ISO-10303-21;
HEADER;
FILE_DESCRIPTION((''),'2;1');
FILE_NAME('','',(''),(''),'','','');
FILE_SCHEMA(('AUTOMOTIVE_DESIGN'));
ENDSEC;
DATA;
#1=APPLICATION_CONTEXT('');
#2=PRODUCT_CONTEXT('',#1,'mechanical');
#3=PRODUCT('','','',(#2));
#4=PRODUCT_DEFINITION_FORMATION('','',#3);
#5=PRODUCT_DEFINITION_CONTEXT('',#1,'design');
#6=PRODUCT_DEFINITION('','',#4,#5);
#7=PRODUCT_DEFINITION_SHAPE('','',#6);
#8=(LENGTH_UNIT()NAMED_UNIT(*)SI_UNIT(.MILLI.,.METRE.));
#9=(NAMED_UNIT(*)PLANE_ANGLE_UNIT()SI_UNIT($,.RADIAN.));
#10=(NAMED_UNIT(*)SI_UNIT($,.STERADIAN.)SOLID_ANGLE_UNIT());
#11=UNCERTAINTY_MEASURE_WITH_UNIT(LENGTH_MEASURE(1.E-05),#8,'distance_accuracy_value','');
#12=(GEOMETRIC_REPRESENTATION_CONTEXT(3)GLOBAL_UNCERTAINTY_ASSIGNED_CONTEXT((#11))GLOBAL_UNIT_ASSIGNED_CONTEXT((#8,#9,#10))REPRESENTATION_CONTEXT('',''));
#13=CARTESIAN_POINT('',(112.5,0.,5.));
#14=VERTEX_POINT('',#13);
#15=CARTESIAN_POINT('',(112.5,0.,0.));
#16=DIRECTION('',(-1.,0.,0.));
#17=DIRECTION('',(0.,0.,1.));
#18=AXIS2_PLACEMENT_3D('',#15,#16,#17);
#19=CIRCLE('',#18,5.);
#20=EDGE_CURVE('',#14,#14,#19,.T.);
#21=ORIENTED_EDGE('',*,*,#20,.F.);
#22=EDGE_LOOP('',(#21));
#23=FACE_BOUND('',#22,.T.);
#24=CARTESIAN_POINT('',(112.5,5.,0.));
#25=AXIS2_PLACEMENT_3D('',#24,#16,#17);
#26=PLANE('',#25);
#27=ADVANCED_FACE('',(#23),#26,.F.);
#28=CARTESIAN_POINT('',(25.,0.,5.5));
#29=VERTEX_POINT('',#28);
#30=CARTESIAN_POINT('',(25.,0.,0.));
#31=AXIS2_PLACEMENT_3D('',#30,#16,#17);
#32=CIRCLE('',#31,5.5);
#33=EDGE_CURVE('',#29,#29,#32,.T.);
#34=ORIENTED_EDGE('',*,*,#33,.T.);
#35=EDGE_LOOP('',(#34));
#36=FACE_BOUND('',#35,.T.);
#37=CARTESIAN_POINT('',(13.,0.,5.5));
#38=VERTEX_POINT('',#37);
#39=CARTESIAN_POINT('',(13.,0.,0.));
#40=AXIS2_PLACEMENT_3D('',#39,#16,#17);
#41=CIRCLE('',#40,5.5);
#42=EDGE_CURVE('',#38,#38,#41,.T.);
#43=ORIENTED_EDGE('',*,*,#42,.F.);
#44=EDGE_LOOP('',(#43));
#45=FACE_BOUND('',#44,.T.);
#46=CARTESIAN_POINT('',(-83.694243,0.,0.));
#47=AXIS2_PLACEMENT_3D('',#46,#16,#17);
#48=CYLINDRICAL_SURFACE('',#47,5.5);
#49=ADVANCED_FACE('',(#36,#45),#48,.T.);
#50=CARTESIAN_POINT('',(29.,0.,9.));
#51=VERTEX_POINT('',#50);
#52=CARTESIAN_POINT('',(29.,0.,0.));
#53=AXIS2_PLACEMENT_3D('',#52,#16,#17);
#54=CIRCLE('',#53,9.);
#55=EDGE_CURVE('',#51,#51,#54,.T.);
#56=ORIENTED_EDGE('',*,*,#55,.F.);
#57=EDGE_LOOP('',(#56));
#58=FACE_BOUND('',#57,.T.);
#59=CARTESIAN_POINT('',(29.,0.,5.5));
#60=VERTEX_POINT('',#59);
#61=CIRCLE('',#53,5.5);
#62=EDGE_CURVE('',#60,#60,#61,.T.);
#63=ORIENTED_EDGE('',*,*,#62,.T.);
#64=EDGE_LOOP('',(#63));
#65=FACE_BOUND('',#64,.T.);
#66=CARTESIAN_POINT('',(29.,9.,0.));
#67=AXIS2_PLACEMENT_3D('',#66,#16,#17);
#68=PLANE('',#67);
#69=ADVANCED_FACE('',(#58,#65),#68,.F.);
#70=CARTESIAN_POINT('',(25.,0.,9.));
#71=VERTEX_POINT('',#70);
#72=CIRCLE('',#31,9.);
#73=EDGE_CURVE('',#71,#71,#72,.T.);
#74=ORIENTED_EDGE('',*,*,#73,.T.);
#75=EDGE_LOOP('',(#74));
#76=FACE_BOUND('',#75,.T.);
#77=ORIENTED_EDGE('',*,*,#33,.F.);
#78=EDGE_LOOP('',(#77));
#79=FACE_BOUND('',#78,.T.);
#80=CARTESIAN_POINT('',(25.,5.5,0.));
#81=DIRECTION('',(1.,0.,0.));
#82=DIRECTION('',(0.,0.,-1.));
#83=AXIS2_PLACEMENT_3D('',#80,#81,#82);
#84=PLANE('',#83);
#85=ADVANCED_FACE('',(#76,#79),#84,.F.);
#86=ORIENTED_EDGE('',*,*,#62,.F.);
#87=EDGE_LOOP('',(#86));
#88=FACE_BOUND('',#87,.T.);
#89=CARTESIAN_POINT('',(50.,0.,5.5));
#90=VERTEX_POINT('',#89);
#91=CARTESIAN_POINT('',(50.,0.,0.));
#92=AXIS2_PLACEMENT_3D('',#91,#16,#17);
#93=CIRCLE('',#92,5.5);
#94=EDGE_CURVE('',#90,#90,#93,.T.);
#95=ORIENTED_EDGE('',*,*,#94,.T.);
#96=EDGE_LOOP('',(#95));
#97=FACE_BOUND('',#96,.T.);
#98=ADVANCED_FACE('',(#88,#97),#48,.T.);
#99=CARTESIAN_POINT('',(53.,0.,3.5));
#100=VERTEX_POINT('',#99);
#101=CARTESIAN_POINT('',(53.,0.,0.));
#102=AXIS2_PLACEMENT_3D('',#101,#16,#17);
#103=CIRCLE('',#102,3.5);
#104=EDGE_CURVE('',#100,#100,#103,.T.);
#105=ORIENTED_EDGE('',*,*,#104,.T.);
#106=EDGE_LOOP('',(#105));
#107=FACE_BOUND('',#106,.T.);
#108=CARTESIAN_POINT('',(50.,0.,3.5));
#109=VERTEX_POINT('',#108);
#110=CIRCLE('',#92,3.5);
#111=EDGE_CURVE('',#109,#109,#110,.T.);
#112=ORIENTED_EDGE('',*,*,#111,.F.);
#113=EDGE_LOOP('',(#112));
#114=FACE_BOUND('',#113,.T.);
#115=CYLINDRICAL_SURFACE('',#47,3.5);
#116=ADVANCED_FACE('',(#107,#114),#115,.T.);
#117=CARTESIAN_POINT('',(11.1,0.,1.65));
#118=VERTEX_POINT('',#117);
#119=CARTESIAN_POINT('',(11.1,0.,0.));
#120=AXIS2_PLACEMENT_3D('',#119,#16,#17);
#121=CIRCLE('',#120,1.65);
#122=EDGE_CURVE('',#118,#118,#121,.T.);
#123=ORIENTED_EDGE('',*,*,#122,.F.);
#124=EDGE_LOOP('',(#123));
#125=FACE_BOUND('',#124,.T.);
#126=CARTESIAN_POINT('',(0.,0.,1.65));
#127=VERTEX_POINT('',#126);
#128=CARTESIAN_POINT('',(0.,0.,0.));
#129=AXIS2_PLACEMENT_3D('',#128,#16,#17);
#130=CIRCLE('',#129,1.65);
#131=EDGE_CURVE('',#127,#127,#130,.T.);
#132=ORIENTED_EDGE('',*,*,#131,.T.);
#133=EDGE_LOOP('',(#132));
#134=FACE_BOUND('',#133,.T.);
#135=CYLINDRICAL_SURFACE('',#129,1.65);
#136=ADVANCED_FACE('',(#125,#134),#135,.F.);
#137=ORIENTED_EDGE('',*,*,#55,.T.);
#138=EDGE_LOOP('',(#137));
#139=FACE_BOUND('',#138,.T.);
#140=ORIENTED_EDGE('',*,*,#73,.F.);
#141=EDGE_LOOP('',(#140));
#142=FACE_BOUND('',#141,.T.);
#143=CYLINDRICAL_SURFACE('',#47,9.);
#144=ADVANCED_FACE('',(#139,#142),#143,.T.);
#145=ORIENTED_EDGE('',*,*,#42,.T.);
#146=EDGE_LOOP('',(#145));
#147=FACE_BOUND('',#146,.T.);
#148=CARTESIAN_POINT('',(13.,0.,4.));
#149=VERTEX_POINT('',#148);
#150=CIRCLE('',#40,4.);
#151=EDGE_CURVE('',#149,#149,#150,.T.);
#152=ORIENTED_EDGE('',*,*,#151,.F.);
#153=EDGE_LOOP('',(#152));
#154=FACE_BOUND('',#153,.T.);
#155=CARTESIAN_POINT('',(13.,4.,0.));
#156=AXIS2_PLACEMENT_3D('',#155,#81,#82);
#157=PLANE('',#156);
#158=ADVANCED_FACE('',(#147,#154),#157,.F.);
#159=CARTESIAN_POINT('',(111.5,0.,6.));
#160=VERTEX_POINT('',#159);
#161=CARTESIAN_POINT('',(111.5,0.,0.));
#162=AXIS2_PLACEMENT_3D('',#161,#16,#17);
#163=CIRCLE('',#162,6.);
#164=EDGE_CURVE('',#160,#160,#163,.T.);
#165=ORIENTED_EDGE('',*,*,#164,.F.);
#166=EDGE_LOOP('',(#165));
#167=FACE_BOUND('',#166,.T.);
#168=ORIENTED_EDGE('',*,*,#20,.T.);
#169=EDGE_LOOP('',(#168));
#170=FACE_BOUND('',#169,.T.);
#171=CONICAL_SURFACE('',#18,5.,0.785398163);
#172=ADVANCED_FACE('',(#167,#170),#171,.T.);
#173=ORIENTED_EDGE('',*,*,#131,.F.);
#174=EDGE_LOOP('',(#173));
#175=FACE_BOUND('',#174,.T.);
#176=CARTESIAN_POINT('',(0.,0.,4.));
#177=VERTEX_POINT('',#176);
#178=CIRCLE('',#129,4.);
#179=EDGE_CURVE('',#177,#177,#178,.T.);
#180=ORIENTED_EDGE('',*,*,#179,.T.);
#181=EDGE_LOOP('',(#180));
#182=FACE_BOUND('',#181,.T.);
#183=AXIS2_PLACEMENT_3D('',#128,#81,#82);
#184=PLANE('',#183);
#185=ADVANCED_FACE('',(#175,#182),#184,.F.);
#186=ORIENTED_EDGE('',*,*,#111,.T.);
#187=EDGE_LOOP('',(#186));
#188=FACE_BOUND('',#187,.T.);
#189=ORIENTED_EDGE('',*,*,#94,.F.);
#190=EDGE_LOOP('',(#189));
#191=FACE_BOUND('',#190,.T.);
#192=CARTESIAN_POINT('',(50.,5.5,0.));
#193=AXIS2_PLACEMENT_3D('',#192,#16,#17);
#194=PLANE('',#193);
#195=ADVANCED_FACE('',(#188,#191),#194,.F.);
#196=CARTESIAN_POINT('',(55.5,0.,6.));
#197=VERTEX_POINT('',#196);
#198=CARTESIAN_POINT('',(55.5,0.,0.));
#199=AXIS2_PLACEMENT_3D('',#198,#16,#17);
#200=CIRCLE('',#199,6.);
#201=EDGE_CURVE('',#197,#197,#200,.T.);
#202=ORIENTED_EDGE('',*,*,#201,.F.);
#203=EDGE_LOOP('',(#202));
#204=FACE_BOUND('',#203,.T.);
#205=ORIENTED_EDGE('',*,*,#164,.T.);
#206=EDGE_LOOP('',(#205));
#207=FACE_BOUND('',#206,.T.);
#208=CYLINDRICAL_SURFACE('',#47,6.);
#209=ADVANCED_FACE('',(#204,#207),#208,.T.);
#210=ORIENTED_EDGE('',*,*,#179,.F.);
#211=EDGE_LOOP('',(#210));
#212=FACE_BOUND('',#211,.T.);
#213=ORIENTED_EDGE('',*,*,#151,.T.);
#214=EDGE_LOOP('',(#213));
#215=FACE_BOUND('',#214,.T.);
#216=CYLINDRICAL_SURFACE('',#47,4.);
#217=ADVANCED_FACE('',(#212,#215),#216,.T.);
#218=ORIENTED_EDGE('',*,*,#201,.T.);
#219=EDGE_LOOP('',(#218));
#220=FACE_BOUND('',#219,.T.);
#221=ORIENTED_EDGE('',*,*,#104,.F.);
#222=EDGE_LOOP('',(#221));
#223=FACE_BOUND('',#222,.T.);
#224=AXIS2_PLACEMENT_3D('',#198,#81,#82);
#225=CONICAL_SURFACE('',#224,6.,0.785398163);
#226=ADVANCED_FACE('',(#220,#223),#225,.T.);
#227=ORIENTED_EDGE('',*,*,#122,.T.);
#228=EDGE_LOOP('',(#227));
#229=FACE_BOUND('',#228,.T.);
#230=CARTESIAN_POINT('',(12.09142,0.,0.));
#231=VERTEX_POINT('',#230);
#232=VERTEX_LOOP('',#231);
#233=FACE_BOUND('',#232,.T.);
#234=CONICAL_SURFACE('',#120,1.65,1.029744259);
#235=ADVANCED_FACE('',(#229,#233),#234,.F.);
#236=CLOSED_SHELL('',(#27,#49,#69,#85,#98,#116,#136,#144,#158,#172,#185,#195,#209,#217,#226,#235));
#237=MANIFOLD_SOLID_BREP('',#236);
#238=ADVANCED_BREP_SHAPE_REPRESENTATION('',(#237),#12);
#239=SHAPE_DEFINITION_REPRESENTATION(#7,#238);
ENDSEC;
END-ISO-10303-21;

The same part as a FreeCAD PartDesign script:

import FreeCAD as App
import Part
import Sketcher
Q = App.Units.Quantity


def add_polygon(sketch, points):
    """Adds a closed chain of lines whose ends are joined by coincident constraints."""
    first, n = sketch.GeometryCount, len(points)
    for a, b in zip(points, points[1:] + points[:1]):
        sketch.addGeometry(Part.LineSegment(App.Vector(*a, 0), App.Vector(*b, 0)), False)
    for i in range(n):
        sketch.addConstraint(Sketcher.Constraint("Coincident", first + i, 2, first + (i + 1) % n, 1))

doc = App.newDocument("Part")
body = doc.addObject("PartDesign::Body", "Body")

sketch1 = doc.addObject("Sketcher::SketchObject", "Sketch")
body.addObject(sketch1)
sketch1.AttachmentSupport = (doc.XY_Plane, [""])
sketch1.MapMode = "FlatFace"
add_polygon(sketch1, [(0, 4), (0, 0), (112.5, 0), (112.5, 5), (111.5, 6), (55.5, 6), (53, 3.5), (50, 3.5), (50, 5.5), (29, 5.5), (29, 9), (25, 9), (25, 5.5), (13, 5.5), (13, 4)])
sketch1.addConstraint([
    Sketcher.Constraint("Vertical", 0),
    Sketcher.Constraint("Horizontal", 1),
    Sketcher.Constraint("Vertical", 2),
    Sketcher.Constraint("Horizontal", 4),
    Sketcher.Constraint("Horizontal", 6),
    Sketcher.Constraint("Vertical", 7),
    Sketcher.Constraint("Horizontal", 8),
    Sketcher.Constraint("Vertical", 9),
    Sketcher.Constraint("Horizontal", 10),
    Sketcher.Constraint("Vertical", 11),
    Sketcher.Constraint("Horizontal", 12),
    Sketcher.Constraint("Vertical", 13),
    Sketcher.Constraint("Horizontal", 14),
    Sketcher.Constraint("Coincident", 0, 2, -1, 1),
    Sketcher.Constraint("Perpendicular", 3, 5),
    Sketcher.Constraint("Horizontal", 8, 2, 11, 2),
    Sketcher.Constraint("Equal", 10, 0),
    Sketcher.Constraint("DistanceX", 4, 2, 4, 1, 56.0),
    Sketcher.Constraint("DistanceX", 6, 2, 6, 1, 3.0),
    Sketcher.Constraint("DistanceX", 8, 2, 8, 1, 21.0),
    Sketcher.Constraint("DistanceX", 10, 2, 10, 1, 4.0),
    Sketcher.Constraint("DistanceX", 12, 2, 12, 1, 12.0),
    Sketcher.Constraint("DistanceX", 14, 2, 14, 1, 13.0),
    Sketcher.Constraint("DistanceY", 2, 1, 2, 2, 5.0),
    Sketcher.Constraint("DistanceY", 7, 1, 7, 2, 2.0),
    Sketcher.Constraint("Angle", 3, Q("135 deg")),
    Sketcher.Constraint("DistanceX", 1, 1, 1, 2, 112.5),
    Sketcher.Constraint("DistanceY", 9, 1, 9, 2, 3.5),
    Sketcher.Constraint("DistanceY", 13, 2, 13, 1, 1.5),
])
revolution = doc.addObject("PartDesign::Revolution", "Revolution")
body.addObject(revolution)
revolution.Profile = sketch1
revolution.ReferenceAxis = (sketch1, ["H_Axis"])
revolution.Angle = 360

sketch2 = doc.addObject("Sketcher::SketchObject", "Sketch001")
body.addObject(sketch2)
sketch2.AttachmentSupport = (doc.YZ_Plane, [""])
sketch2.MapMode = "FlatFace"
sketch2.addGeometry(Part.Circle(App.Vector(0, 0, 0), App.Vector(0, 0, 1), 1.6), False)
sketch2.addConstraint([
    Sketcher.Constraint("Coincident", 0, 3, -1, 1),
    Sketcher.Constraint("Diameter", 0, 3.3),
])
doc.recompute()
hole = doc.addObject("PartDesign::Hole", "Hole")
body.addObject(hole)
hole.Profile = sketch2
hole.ThreadType = "None"
hole.Diameter = 3.3
hole.DepthType = "Dimension"
hole.Depth = 11.1
hole.DrillPoint = "Angled"
hole.DrillPointAngle = 118
hole.Reversed = True

doc.recompute()
